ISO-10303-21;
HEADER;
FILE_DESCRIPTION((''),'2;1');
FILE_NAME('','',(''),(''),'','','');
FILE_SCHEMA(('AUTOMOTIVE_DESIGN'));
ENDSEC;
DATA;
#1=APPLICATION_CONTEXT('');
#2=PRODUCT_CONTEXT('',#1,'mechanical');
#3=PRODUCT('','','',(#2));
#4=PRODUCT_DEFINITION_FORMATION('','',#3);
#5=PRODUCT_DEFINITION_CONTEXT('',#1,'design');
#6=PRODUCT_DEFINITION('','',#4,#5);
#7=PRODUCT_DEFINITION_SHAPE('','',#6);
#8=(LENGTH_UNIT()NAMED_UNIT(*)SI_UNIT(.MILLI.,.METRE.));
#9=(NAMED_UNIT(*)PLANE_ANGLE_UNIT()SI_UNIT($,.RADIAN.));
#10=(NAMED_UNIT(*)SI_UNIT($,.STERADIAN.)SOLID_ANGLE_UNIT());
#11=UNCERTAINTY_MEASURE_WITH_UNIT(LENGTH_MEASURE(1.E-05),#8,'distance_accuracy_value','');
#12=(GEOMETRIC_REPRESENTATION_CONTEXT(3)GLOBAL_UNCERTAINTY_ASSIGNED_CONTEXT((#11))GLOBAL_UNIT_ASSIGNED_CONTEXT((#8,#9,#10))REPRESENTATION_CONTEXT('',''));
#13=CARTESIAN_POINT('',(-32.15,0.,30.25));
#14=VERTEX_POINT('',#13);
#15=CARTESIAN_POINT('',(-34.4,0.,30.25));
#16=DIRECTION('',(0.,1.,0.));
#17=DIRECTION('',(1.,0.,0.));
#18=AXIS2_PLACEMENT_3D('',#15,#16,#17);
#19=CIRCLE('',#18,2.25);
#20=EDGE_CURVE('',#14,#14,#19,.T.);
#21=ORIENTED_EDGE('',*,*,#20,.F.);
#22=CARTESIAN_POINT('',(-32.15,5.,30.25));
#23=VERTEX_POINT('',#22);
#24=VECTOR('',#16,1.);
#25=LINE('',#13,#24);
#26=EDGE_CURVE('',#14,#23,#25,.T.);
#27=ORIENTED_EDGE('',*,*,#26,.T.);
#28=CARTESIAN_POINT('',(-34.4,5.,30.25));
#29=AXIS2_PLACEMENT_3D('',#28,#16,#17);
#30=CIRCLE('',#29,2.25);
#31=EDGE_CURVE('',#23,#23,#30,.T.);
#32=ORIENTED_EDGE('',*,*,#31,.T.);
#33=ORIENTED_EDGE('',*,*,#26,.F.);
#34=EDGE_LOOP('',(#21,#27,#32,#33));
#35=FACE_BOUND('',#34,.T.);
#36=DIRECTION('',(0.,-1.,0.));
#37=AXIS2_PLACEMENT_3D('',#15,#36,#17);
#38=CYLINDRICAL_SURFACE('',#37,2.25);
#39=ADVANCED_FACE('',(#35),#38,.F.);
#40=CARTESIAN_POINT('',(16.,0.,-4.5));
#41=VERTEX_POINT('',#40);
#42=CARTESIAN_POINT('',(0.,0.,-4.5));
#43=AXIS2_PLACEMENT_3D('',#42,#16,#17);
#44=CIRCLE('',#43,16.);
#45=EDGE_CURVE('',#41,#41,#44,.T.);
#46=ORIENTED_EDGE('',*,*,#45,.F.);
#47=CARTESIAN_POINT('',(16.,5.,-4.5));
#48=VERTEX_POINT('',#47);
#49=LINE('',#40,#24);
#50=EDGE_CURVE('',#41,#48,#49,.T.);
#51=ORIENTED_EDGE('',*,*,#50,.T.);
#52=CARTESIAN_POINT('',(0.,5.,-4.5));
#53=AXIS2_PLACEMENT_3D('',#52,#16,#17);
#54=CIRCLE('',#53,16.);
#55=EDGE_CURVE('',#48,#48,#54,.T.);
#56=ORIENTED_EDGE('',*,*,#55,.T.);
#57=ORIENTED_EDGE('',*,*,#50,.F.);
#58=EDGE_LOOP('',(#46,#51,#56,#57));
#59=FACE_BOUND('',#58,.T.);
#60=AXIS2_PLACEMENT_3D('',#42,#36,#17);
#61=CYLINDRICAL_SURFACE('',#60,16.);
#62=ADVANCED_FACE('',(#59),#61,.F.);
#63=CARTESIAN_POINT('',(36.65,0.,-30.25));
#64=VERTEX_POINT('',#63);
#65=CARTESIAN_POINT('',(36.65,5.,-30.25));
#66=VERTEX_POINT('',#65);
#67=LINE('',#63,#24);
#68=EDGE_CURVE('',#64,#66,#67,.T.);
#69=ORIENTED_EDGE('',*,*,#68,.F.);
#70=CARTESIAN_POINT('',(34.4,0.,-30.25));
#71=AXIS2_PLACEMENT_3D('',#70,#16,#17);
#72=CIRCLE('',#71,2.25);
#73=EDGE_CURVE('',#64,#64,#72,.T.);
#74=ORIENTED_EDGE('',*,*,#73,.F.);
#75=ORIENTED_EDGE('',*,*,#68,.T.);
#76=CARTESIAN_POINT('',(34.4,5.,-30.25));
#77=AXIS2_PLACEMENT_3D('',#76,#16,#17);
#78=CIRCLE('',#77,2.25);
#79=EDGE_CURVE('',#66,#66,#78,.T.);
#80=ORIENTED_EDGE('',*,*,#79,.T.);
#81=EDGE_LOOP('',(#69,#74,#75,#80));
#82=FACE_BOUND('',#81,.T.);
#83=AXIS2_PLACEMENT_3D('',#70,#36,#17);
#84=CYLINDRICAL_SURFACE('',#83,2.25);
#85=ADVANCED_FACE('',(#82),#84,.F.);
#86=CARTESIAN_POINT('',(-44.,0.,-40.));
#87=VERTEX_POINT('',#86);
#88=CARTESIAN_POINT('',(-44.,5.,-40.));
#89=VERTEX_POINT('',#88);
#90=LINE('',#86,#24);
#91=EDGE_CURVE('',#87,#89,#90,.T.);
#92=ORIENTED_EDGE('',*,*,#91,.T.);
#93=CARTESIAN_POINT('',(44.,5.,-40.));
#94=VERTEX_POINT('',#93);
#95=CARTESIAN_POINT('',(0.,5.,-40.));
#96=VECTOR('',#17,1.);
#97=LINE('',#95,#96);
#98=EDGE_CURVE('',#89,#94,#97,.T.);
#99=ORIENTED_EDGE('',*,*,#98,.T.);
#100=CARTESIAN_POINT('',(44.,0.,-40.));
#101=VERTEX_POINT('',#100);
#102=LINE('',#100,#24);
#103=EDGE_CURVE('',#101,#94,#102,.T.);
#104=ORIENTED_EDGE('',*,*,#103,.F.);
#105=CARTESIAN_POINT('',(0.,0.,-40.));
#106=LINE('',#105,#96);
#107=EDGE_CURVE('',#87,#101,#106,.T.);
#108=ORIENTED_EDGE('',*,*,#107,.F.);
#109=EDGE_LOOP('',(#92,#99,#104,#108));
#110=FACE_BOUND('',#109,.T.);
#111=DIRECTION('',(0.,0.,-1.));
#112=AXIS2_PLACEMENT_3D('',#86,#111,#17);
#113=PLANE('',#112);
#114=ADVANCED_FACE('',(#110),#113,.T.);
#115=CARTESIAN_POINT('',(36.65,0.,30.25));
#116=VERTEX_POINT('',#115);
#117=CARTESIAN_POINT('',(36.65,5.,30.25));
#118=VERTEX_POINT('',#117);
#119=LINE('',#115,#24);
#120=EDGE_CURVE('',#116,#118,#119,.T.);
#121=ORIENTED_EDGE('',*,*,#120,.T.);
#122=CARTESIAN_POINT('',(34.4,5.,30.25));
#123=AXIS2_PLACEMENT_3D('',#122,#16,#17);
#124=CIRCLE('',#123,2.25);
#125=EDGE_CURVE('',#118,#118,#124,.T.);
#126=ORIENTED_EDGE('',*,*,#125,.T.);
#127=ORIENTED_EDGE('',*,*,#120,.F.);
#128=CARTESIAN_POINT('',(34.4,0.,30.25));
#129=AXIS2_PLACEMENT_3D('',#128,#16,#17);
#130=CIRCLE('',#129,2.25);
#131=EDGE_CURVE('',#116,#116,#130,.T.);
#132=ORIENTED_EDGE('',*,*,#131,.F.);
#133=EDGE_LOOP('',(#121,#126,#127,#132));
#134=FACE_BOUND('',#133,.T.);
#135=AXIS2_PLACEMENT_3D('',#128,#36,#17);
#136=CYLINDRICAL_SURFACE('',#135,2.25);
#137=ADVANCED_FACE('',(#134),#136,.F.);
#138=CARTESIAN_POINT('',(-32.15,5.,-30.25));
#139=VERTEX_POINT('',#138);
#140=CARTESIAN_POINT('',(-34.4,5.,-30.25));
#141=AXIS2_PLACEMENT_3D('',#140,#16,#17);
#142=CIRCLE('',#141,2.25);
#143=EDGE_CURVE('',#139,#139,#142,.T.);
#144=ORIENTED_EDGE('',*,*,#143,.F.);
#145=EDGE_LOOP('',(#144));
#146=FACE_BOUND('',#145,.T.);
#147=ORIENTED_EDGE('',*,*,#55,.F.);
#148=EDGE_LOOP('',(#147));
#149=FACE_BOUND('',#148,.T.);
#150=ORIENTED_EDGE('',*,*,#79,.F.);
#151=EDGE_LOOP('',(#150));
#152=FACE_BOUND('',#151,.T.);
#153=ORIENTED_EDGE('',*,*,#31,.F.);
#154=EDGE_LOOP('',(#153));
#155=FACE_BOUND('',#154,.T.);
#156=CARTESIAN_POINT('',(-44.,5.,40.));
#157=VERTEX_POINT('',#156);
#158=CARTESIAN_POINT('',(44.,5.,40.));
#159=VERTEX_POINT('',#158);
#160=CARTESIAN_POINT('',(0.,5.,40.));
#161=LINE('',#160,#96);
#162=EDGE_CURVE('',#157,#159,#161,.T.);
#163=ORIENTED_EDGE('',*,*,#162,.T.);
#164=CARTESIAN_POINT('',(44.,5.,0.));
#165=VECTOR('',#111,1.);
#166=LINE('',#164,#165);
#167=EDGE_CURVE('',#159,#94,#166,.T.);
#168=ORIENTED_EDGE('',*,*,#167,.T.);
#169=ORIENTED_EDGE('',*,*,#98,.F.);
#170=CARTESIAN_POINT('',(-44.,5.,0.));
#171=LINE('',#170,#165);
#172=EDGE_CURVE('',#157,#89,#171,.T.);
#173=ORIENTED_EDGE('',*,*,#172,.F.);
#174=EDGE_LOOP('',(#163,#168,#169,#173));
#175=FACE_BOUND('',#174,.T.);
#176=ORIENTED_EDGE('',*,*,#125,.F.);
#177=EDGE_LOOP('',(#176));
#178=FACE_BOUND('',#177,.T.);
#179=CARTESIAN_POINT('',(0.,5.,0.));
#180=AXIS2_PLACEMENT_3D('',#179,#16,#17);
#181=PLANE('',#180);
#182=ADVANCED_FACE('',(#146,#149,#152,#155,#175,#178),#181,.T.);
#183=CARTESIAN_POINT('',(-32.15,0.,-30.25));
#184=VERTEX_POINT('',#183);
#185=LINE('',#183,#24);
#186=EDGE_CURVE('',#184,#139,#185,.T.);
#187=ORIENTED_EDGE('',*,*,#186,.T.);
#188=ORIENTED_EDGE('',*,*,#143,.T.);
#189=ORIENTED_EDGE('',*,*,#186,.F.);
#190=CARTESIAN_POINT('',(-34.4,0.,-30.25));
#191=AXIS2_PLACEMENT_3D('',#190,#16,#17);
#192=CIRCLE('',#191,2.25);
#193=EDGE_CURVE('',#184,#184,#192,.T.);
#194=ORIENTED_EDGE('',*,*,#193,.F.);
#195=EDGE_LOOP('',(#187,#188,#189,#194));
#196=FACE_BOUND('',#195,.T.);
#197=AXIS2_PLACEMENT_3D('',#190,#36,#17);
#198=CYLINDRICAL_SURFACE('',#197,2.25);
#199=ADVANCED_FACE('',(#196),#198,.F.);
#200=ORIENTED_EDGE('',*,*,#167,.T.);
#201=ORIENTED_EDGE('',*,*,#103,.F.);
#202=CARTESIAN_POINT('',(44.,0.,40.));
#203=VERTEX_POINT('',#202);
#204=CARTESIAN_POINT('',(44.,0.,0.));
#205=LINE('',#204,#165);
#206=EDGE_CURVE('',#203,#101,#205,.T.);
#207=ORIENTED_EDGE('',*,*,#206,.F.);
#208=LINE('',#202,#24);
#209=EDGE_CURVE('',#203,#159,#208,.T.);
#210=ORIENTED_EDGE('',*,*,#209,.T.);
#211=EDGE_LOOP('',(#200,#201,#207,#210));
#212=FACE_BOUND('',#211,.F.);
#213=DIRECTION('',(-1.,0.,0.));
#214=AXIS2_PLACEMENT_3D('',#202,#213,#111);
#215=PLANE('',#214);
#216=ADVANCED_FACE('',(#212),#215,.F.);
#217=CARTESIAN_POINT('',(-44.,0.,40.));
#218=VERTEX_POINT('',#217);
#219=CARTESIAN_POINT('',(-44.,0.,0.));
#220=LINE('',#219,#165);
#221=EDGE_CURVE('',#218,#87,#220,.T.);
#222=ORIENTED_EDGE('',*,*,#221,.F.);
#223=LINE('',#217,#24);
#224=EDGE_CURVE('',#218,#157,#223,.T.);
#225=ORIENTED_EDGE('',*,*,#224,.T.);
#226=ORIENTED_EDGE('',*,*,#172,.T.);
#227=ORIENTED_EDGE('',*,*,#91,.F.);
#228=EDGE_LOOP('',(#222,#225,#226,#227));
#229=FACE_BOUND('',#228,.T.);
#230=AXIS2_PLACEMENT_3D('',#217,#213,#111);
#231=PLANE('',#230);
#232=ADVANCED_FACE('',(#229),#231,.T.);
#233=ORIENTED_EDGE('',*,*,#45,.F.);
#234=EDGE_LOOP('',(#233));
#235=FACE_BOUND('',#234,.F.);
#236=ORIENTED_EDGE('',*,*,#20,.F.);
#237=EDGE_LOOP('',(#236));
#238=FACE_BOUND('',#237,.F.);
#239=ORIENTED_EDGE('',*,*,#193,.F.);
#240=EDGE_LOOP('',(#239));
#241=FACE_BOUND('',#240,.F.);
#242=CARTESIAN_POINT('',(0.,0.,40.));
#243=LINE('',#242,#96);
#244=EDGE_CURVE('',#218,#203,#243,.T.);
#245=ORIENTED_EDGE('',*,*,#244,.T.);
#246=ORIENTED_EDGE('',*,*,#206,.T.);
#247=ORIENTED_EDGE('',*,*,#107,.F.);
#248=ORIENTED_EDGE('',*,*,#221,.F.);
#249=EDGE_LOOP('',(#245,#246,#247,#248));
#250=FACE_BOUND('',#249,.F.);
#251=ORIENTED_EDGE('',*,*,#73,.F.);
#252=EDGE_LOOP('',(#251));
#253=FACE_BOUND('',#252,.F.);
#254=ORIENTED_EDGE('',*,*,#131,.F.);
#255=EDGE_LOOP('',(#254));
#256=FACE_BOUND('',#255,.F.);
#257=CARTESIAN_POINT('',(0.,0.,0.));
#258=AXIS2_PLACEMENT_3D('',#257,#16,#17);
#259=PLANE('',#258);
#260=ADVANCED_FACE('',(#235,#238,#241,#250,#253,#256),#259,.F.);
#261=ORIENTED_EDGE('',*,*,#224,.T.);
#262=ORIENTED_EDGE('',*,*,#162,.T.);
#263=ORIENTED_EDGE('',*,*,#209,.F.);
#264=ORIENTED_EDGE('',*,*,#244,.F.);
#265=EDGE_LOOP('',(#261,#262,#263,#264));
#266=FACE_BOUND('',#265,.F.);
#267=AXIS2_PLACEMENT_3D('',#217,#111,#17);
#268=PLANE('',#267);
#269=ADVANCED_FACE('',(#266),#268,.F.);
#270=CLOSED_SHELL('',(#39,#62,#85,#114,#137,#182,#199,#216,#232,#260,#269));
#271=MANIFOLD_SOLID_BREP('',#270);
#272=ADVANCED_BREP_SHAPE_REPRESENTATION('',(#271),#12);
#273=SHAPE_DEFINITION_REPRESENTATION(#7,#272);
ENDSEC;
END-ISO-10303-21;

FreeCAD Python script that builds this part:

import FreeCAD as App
import Part
import Sketcher

V = App.Vector
Q = App.Units.Quantity

doc = App.newDocument("Part")
params = doc.addObject("Spreadsheet::Sheet", "Params")
for row, (alias, value) in enumerate([
    ("sketch1_diameter", "32 mm"),
    ("sketch1_diameter2", "4.5 mm"),
    ("sketch1_width", "88 mm"),
    ("sketch1_height", "80 mm"),
    ("pad1_length", "5 mm"),
], start=1):
    params.set(f"A{row}", alias)
    params.set(f"B{row}", "=" + value)
    params.setAlias(f"B{row}", alias)

body = doc.addObject("PartDesign::Body", "Body")

# Sketch on XZ plane
sketch1 = body.newObject("Sketcher::SketchObject", "Sketch")
sketch1.AttachmentSupport = (doc.getObject("XZ_Plane"), [""])
sketch1.MapMode = "FlatFace"
sketch1.addGeometry([
    Part.LineSegment(V(-44, -40, 0), V(-44, 40, 0)),  # 0
    Part.LineSegment(V(-44, 40, 0), V(44, 40, 0)),  # 1
    Part.LineSegment(V(44, 40, 0), V(44, -40, 0)),  # 2
    Part.LineSegment(V(44, -40, 0), V(-44, -40, 0)),  # 3
    Part.Circle(V(-34.4, 30.25, 0), V(0, 0, 1), 2.25),  # 4
    Part.Circle(V(34.4, 30.25, 0), V(0, 0, 1), 2.25),  # 5
    Part.Circle(V(-34.4, -30.25, 0), V(0, 0, 1), 2.25),  # 6
    Part.Circle(V(0, -4.5, 0), V(0, 0, 1), 16),  # 7
    Part.Circle(V(34.4, -30.25, 0), V(0, 0, 1), 2.25),  # 8
], False)
sketch1.addConstraint([
    Sketcher.Constraint("Coincident", 0, 2, 1, 1),
    Sketcher.Constraint("Coincident", 1, 2, 2, 1),
    Sketcher.Constraint("Coincident", 2, 2, 3, 1),
    Sketcher.Constraint("Coincident", 3, 2, 0, 1),
    Sketcher.Constraint("Vertical", 0),
    Sketcher.Constraint("Horizontal", 1),
    Sketcher.Constraint("Vertical", 2),
    Sketcher.Constraint("Horizontal", 3),
    Sketcher.Constraint("Equal", 4, 5),
    Sketcher.Constraint("Equal", 5, 6),
    Sketcher.Constraint("Equal", 6, 8),
    Sketcher.Constraint("Symmetric", 5, 3, 6, 3, -1, 1),
    Sketcher.Constraint("Symmetric", 4, 3, 8, 3, -1, 1),
    Sketcher.Constraint("Symmetric", 0, 2, 2, 2, -1, 1),
    Sketcher.Constraint("Symmetric", 4, 3, 5, 3, -2),
    Sketcher.Constraint("PointOnObject", 7, 3, -2),
    Sketcher.Constraint("Diameter", 7, Q("32 mm")),
    Sketcher.Constraint("Diameter", 4, Q("4.5 mm")),
    Sketcher.Constraint("DistanceX", 1, 1, 1, 2, Q("88 mm")),
    Sketcher.Constraint("DistanceY", 0, 1, 0, 2, Q("80 mm")),
    Sketcher.Constraint("DistanceX", 4, 3, -1, 1, Q("34.4 mm")),
    Sketcher.Constraint("DistanceY", 7, 3, -1, 1, Q("4.5 mm")),
    Sketcher.Constraint("DistanceY", 6, 3, 4, 3, Q("60.5 mm")),
])
sketch1.setExpression("Constraints[16]", "Params.sketch1_diameter")
sketch1.setExpression("Constraints[17]", "Params.sketch1_diameter2")
sketch1.setExpression("Constraints[18]", "Params.sketch1_width")
sketch1.setExpression("Constraints[19]", "Params.sketch1_height")
pad1 = body.newObject("PartDesign::Pad", "Pad")
pad1.Profile = sketch1
pad1.setExpression("Length", "Params.pad1_length")
pad1.Reversed = True

doc.recompute()
